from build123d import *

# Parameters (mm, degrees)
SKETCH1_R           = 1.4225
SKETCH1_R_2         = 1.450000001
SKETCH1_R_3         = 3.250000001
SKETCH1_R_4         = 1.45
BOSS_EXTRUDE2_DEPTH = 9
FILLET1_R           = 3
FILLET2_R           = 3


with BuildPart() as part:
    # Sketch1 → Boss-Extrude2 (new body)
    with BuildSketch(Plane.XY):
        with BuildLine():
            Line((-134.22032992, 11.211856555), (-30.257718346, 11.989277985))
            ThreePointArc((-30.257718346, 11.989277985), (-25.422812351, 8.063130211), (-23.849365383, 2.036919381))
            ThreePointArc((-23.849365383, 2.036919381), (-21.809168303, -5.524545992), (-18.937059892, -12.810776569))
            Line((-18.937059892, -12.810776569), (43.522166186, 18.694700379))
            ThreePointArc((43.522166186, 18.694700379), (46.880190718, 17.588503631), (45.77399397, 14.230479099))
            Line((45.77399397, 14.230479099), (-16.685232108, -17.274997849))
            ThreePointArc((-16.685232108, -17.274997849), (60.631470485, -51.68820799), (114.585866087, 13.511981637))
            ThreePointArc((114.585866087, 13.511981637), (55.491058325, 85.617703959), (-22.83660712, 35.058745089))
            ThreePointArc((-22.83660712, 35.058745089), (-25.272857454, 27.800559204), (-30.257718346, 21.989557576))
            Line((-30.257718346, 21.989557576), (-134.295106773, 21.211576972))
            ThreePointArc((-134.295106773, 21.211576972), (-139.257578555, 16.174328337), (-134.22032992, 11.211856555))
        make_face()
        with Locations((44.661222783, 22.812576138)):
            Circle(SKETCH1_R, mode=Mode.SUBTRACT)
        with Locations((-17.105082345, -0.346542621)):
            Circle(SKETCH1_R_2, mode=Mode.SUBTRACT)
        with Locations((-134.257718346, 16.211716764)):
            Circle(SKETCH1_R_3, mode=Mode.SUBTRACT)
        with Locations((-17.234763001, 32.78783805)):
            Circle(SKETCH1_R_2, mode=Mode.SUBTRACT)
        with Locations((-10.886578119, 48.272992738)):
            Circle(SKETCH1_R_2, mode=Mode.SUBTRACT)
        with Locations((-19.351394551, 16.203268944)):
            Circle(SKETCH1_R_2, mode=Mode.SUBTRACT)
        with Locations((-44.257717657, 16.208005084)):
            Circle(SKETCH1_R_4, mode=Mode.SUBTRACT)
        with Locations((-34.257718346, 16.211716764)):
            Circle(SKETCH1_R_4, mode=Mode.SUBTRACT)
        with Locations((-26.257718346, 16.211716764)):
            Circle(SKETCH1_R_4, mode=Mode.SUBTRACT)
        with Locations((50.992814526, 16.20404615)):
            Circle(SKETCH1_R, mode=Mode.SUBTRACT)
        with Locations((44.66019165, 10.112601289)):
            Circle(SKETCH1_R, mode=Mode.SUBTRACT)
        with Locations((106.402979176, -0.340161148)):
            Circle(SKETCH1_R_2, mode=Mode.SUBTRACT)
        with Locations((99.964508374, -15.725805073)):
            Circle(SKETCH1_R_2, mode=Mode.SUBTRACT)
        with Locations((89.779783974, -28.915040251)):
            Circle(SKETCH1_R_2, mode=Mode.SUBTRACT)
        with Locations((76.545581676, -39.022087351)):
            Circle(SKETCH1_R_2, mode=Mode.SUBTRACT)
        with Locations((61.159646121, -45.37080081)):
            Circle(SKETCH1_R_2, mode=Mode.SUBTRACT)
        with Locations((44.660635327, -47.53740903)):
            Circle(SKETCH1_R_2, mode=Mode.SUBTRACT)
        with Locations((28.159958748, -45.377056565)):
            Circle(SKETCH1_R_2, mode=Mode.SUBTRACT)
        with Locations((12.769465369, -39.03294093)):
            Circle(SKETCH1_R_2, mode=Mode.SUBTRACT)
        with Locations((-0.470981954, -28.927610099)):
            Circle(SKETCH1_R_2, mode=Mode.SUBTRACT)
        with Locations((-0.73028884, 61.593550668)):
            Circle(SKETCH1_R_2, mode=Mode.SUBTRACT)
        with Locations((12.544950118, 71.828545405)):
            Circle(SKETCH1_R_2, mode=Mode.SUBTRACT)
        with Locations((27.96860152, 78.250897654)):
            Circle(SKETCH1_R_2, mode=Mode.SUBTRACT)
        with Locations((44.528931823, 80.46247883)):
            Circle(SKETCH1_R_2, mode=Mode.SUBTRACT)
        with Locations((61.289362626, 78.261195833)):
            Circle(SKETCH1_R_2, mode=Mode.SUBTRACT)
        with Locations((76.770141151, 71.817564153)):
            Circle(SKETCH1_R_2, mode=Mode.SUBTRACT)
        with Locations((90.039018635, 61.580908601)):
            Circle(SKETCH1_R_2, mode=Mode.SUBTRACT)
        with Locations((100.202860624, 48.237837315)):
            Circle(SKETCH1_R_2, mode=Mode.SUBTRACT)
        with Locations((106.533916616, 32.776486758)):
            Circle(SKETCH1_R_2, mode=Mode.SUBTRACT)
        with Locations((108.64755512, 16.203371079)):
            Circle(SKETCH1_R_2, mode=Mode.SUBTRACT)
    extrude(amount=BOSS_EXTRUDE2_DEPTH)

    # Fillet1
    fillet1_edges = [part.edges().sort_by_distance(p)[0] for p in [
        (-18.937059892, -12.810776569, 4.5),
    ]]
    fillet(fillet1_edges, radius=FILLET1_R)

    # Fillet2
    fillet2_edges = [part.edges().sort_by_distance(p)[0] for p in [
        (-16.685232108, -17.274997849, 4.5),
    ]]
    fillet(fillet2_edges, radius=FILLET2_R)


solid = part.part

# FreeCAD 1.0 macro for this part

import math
import FreeCAD as App
import Part
import Sketcher
from FreeCAD import Vector


def edges_at(feature, points):
    """Names of the edges that pass closest to the given points."""
    edges = feature.Shape.Edges
    near = lambda p: min(range(len(edges)), key=lambda i: edges[i].distToShape(Part.Vertex(*p))[0])
    return sorted({f"Edge{near(p) + 1}" for p in points})

doc = App.newDocument("Part")
body = doc.addObject("PartDesign::Body", "Body")

sketch1 = doc.addObject("Sketcher::SketchObject", "Sketch")
body.addObject(sketch1)
sketch1.AttachmentSupport = (doc.XY_Plane, [""])
sketch1.MapMode = "FlatFace"
sketch1.addGeometry(Part.LineSegment(Vector(-134.22033, 11.211857, 0), Vector(-30.257718, 11.989278, 0)), False)
sketch1.addGeometry(Part.ArcOfCircle(Part.Circle(Vector(-33.830595, 2.649334, 0), Vector(0, 0, 1), 10), math.radians(-3.511075), math.radians(69.066284)), False)
sketch1.addGeometry(Part.ArcOfCircle(Part.Circle(Vector(44.64808, 16.46259, 0), Vector(0, 0, 1), 70), math.radians(-168.107213), math.radians(-155.279573)), False)
sketch1.addGeometry(Part.LineSegment(Vector(-18.93706, -12.810777, 0), Vector(43.522166, 18.6947, 0)), False)
sketch1.addGeometry(Part.ArcOfCircle(Part.Circle(Vector(44.64808, 16.46259, 0), Vector(0, 0, 1), 2.5), math.radians(-63.23286), math.radians(116.76714)), False)
sketch1.addGeometry(Part.LineSegment(Vector(45.773994, 14.230479, 0), Vector(-16.685232, -17.274998, 0)), False)
sketch1.addGeometry(Part.ArcOfCircle(Part.Circle(Vector(44.64808, 16.46259, 0), Vector(0, 0, 1), 70), math.radians(-151.186147), math.radians(-2.415821)), False)
sketch1.addGeometry(Part.ArcOfCircle(Part.Circle(Vector(44.64808, 16.46259, 0), Vector(0, 0, 1), 70), math.radians(-2.415821), math.radians(164.593864)), False)
sketch1.addGeometry(Part.ArcOfCircle(Part.Circle(Vector(-42.664596, 37.676156, 0), Vector(0, 0, 1), 20), math.radians(-51.658748), math.radians(-7.519901)), False)
sketch1.addGeometry(Part.LineSegment(Vector(-30.257718, 21.989558, 0), Vector(-134.295107, 21.211577, 0)), False)
sketch1.addGeometry(Part.ArcOfCircle(Part.Circle(Vector(-134.257718, 16.211717, 0), Vector(0, 0, 1), 5), math.radians(90.428444), math.radians(270.428444)), False)
sketch1.addGeometry(Part.Circle(Vector(-134.257718, 16.211717, 0), Vector(0, 0, 1), 3.25), False)
sketch1.addGeometry(Part.Circle(Vector(-17.105082, -0.346543, 0), Vector(0, 0, 1), 1.45), False)
sketch1.addGeometry(Part.Circle(Vector(-44.257718, 16.208005, 0), Vector(0, 0, 1), 1.45), False)
sketch1.addGeometry(Part.Circle(Vector(-34.257718, 16.211717, 0), Vector(0, 0, 1), 1.45), False)
sketch1.addGeometry(Part.Circle(Vector(-26.257718, 16.211717, 0), Vector(0, 0, 1), 1.45), False)
sketch1.addGeometry(Part.Circle(Vector(-19.351395, 16.203269, 0), Vector(0, 0, 1), 1.45), False)
sketch1.addGeometry(Part.Circle(Vector(12.769465, -39.032941, 0), Vector(0, 0, 1), 1.45), False)
sketch1.addGeometry(Part.Circle(Vector(28.159959, -45.377057, 0), Vector(0, 0, 1), 1.45), False)
sketch1.addGeometry(Part.Circle(Vector(44.660635, -47.537409, 0), Vector(0, 0, 1), 1.45), False)
sketch1.addGeometry(Part.Circle(Vector(-0.470982, -28.92761, 0), Vector(0, 0, 1), 1.45), False)
sketch1.addGeometry(Part.Circle(Vector(61.159646, -45.370801, 0), Vector(0, 0, 1), 1.45), False)
sketch1.addGeometry(Part.Circle(Vector(76.545582, -39.022087, 0), Vector(0, 0, 1), 1.45), False)
sketch1.addGeometry(Part.Circle(Vector(89.779784, -28.91504, 0), Vector(0, 0, 1), 1.45), False)
sketch1.addGeometry(Part.Circle(Vector(44.660192, 10.112601, 0), Vector(0, 0, 1), 1.4225), False)
sketch1.addGeometry(Part.Circle(Vector(99.964508, -15.725805, 0), Vector(0, 0, 1), 1.45), False)
sketch1.addGeometry(Part.Circle(Vector(106.402979, -0.340161, 0), Vector(0, 0, 1), 1.45), False)
sketch1.addGeometry(Part.Circle(Vector(50.992815, 16.204046, 0), Vector(0, 0, 1), 1.4225), False)
sketch1.addGeometry(Part.Circle(Vector(108.647555, 16.203371, 0), Vector(0, 0, 1), 1.45), False)
sketch1.addGeometry(Part.Circle(Vector(-17.234763, 32.787838, 0), Vector(0, 0, 1), 1.45), False)
sketch1.addGeometry(Part.Circle(Vector(44.661223, 22.812576, 0), Vector(0, 0, 1), 1.4225), False)
sketch1.addGeometry(Part.Circle(Vector(-10.886578, 48.272993, 0), Vector(0, 0, 1), 1.45), False)
sketch1.addGeometry(Part.Circle(Vector(106.533917, 32.776487, 0), Vector(0, 0, 1), 1.45), False)
sketch1.addGeometry(Part.Circle(Vector(100.202861, 48.237837, 0), Vector(0, 0, 1), 1.45), False)
sketch1.addGeometry(Part.Circle(Vector(-0.730289, 61.593551, 0), Vector(0, 0, 1), 1.45), False)
sketch1.addGeometry(Part.Circle(Vector(12.54495, 71.828545, 0), Vector(0, 0, 1), 1.45), False)
sketch1.addGeometry(Part.Circle(Vector(27.968602, 78.250898, 0), Vector(0, 0, 1), 1.45), False)
sketch1.addGeometry(Part.Circle(Vector(44.528932, 80.462479, 0), Vector(0, 0, 1), 1.45), False)
sketch1.addGeometry(Part.Circle(Vector(90.039019, 61.580909, 0), Vector(0, 0, 1), 1.45), False)
sketch1.addGeometry(Part.Circle(Vector(76.770141, 71.817564, 0), Vector(0, 0, 1), 1.45), False)
sketch1.addGeometry(Part.Circle(Vector(61.289363, 78.261196, 0), Vector(0, 0, 1), 1.45), False)
sketch1.addConstraint(Sketcher.Constraint("Coincident", 0, 2, 1, 2))
sketch1.addConstraint(Sketcher.Constraint("Coincident", 1, 1, 2, 1))
sketch1.addConstraint(Sketcher.Constraint("Coincident", 2, 2, 3, 1))
sketch1.addConstraint(Sketcher.Constraint("Coincident", 3, 2, 4, 2))
sketch1.addConstraint(Sketcher.Constraint("Coincident", 4, 1, 5, 1))
sketch1.addConstraint(Sketcher.Constraint("Coincident", 5, 2, 6, 1))
sketch1.addConstraint(Sketcher.Constraint("Coincident", 6, 2, 7, 1))
sketch1.addConstraint(Sketcher.Constraint("Coincident", 7, 2, 8, 2))
sketch1.addConstraint(Sketcher.Constraint("Coincident", 8, 1, 9, 1))
sketch1.addConstraint(Sketcher.Constraint("Coincident", 9, 2, 10, 1))
sketch1.addConstraint(Sketcher.Constraint("Coincident", 10, 2, 0, 1))
sketch1.addConstraint(Sketcher.Constraint("Coincident", 4, 3, 2, 3))
sketch1.addConstraint(Sketcher.Constraint("Coincident", 6, 3, 2, 3))
sketch1.addConstraint(Sketcher.Constraint("Coincident", 7, 3, 2, 3))
sketch1.addConstraint(Sketcher.Constraint("Coincident", 11, 3, 10, 3))
sketch1.addConstraint(Sketcher.Constraint("Radius", 1, 10.0))
sketch1.addConstraint(Sketcher.Constraint("Radius", 2, 70.0))
sketch1.addConstraint(Sketcher.Constraint("Radius", 6, 70.0))
sketch1.addConstraint(Sketcher.Constraint("Radius", 8, 20.0))
sketch1.addConstraint(Sketcher.Constraint("Radius", 10, 5.0))
sketch1.addConstraint(Sketcher.Constraint("Diameter", 11, 6.5))
sketch1.addConstraint(Sketcher.Constraint("Diameter", 12, 2.9))
sketch1.addConstraint(Sketcher.Constraint("Diameter", 13, 2.9))
sketch1.addConstraint(Sketcher.Constraint("Diameter", 14, 2.9))
sketch1.addConstraint(Sketcher.Constraint("Diameter", 15, 2.9))
sketch1.addConstraint(Sketcher.Constraint("Diameter", 16, 2.9))
sketch1.addConstraint(Sketcher.Constraint("Diameter", 17, 2.9))
sketch1.addConstraint(Sketcher.Constraint("Diameter", 18, 2.9))
sketch1.addConstraint(Sketcher.Constraint("Diameter", 19, 2.9))
sketch1.addConstraint(Sketcher.Constraint("Diameter", 20, 2.9))
sketch1.addConstraint(Sketcher.Constraint("Diameter", 21, 2.9))
sketch1.addConstraint(Sketcher.Constraint("Diameter", 22, 2.9))
sketch1.addConstraint(Sketcher.Constraint("Diameter", 23, 2.9))
sketch1.addConstraint(Sketcher.Constraint("Diameter", 25, 2.9))
sketch1.addConstraint(Sketcher.Constraint("Diameter", 26, 2.9))
sketch1.addConstraint(Sketcher.Constraint("Diameter", 28, 2.9))
sketch1.addConstraint(Sketcher.Constraint("Diameter", 29, 2.9))
sketch1.addConstraint(Sketcher.Constraint("Diameter", 31, 2.9))
sketch1.addConstraint(Sketcher.Constraint("Diameter", 32, 2.9))
sketch1.addConstraint(Sketcher.Constraint("Diameter", 33, 2.9))
sketch1.addConstraint(Sketcher.Constraint("Diameter", 34, 2.9))
sketch1.addConstraint(Sketcher.Constraint("Diameter", 35, 2.9))
sketch1.addConstraint(Sketcher.Constraint("Diameter", 36, 2.9))
sketch1.addConstraint(Sketcher.Constraint("Diameter", 37, 2.9))
sketch1.addConstraint(Sketcher.Constraint("Diameter", 38, 2.9))
sketch1.addConstraint(Sketcher.Constraint("Diameter", 39, 2.9))
sketch1.addConstraint(Sketcher.Constraint("Diameter", 40, 2.9))
sketch1.addConstraint(Sketcher.Constraint("Radius", 4, 2.5))
sketch1.addConstraint(Sketcher.Constraint("Diameter", 24, 2.845))
sketch1.addConstraint(Sketcher.Constraint("Diameter", 27, 2.845))
sketch1.addConstraint(Sketcher.Constraint("Diameter", 30, 2.845))
sketch1.addConstraint(Sketcher.Constraint("DistanceX", 13, 3, 14, 3, 9.999999))
sketch1.addConstraint(Sketcher.Constraint("DistanceX", 14, 3, 15, 3, 8.0))
sketch1.addConstraint(Sketcher.Constraint("DistanceY", 19, 3, 2, 3, 63.999999))
sketch1.addConstraint(Sketcher.Constraint("DistanceX", 14, 3, 0, 2, 4.0))
sketch1.addConstraint(Sketcher.Constraint("DistanceX", 8, 1, 15, 3, 4.0))
sketch1.addConstraint(Sketcher.Constraint("DistanceX", 8, 3, 1, 3, 8.834001))
sketch1.addConstraint(Sketcher.Constraint("DistanceY", 26, 3, 33, 3, 48.577998))
sketch1.addConstraint(Sketcher.Constraint("DistanceY", 21, 3, -1, 1, 45.370801))
sketch1.addConstraint(Sketcher.Constraint("DistanceY", -1, 1, 24, 3, 10.112601))
sketch1.addConstraint(Sketcher.Constraint("DistanceX", -1, 1, 36, 3, 27.968602))
sketch1.addConstraint(Sketcher.Constraint("DistanceY", -1, 1, 3, 2, 18.6947))
sketch1.addConstraint(Sketcher.Constraint("DistanceX", 10, 3, 2, 3, 178.905798))
sketch1.addConstraint(Sketcher.Constraint("DistanceY", 12, 3, 8, 3, 38.022699))
sketch1.addConstraint(Sketcher.Constraint("DistanceX", 14, 3, 2, 3, 78.905798))
sketch1.addConstraint(Sketcher.Constraint("DistanceX", 1, 3, 16, 3, 14.479201))
sketch1.addConstraint(Sketcher.Constraint("DistanceY", 17, 3, 12, 3, 38.686398))
sketch1.addConstraint(Sketcher.Constraint("DistanceX", 12, 3, 20, 3, 16.6341))
sketch1.addConstraint(Sketcher.Constraint("DistanceY", 19, 3, 20, 3, 18.609799))
sketch1.addConstraint(Sketcher.Constraint("DistanceX", 4, 3, 22, 3, 31.897502))
sketch1.addConstraint(Sketcher.Constraint("DistanceY", 36, 3, 40, 3, 0.010298))
sketch1.addConstraint(Sketcher.Constraint("DistanceY", 10, 2, 8, 3, 26.4643))
sketch1.addConstraint(Sketcher.Constraint("Distance", 0, 103.965518))
sketch1.addConstraint(Sketcher.Constraint("DistanceX", -1, 1, 2, 3, 44.64808))
sketch1.addConstraint(Sketcher.Constraint("DistanceY", -1, 1, 2, 3, 16.46259))
sketch1.addConstraint(Sketcher.Constraint("DistanceY", -1, 1, 16, 3, 16.203269))
sketch1.addConstraint(Sketcher.Constraint("DistanceY", 17, 3, -1, 1, 39.032941))
sketch1.addConstraint(Sketcher.Constraint("DistanceX", -1, 1, 18, 3, 28.159959))
sketch1.addConstraint(Sketcher.Constraint("DistanceX", 20, 3, -1, 1, 0.470982))
sketch1.addConstraint(Sketcher.Constraint("DistanceY", 23, 3, -1, 1, 28.91504))
sketch1.addConstraint(Sketcher.Constraint("DistanceX", -1, 1, 24, 3, 44.660192))
sketch1.addConstraint(Sketcher.Constraint("DistanceX", -1, 1, 25, 3, 99.964508))
sketch1.addConstraint(Sketcher.Constraint("DistanceX", -1, 1, 26, 3, 106.402979))
sketch1.addConstraint(Sketcher.Constraint("DistanceY", 26, 3, -1, 1, 0.340161))
sketch1.addConstraint(Sketcher.Constraint("DistanceY", -1, 1, 28, 3, 16.203371))
sketch1.addConstraint(Sketcher.Constraint("DistanceY", -1, 1, 29, 3, 32.787838))
sketch1.addConstraint(Sketcher.Constraint("DistanceX", 31, 3, -1, 1, 10.886578))
sketch1.addConstraint(Sketcher.Constraint("DistanceX", -1, 1, 33, 3, 100.202861))
sketch1.addConstraint(Sketcher.Constraint("DistanceX", 34, 3, -1, 1, 0.730289))
sketch1.addConstraint(Sketcher.Constraint("DistanceY", -1, 1, 34, 3, 61.593551))
sketch1.addConstraint(Sketcher.Constraint("DistanceX", -1, 1, 35, 3, 12.54495))
sketch1.addConstraint(Sketcher.Constraint("DistanceX", -1, 1, 37, 3, 44.528932))
sketch1.addConstraint(Sketcher.Constraint("DistanceY", -1, 1, 37, 3, 80.462479))
sketch1.addConstraint(Sketcher.Constraint("DistanceX", -1, 1, 38, 3, 90.039019))
sketch1.addConstraint(Sketcher.Constraint("DistanceY", -1, 1, 38, 3, 61.580909))
sketch1.addConstraint(Sketcher.Constraint("DistanceX", -1, 1, 39, 3, 76.770141))
sketch1.addConstraint(Sketcher.Constraint("DistanceY", -1, 1, 1, 1, 2.036919))
sketch1.addConstraint(Sketcher.Constraint("DistanceX", 2, 2, -1, 1, 18.93706))
sketch1.addConstraint(Sketcher.Constraint("DistanceY", -1, 1, 4, 1, 14.230479))
sketch1.addConstraint(Sketcher.Constraint("DistanceY", -1, 1, 6, 2, 13.511982))
sketch1.addConstraint(Sketcher.Constraint("DistanceX", 10, 3, 8, 3, 91.593122))
sketch1.addConstraint(Sketcher.Constraint("DistanceY", 1, 3, 13, 3, 13.558671))
sketch1.addConstraint(Sketcher.Constraint("DistanceY", 13, 3, 14, 3, 0.003712))
sketch1.addConstraint(Sketcher.Constraint("DistanceY", 13, 3, 15, 3, 0.003712))
sketch1.addConstraint(Sketcher.Constraint("DistanceX", 1, 3, 17, 3, 46.600061))
sketch1.addConstraint(Sketcher.Constraint("DistanceX", 17, 3, 19, 3, 31.89117))
sketch1.addConstraint(Sketcher.Constraint("DistanceX", 19, 3, 21, 3, 16.499011))
sketch1.addConstraint(Sketcher.Constraint("DistanceY", 19, 3, 22, 3, 8.515322))
sketch1.addConstraint(Sketcher.Constraint("DistanceY", 18, 3, 22, 3, 6.354969))
sketch1.addConstraint(Sketcher.Constraint("DistanceX", 19, 3, 23, 3, 45.119149))
sketch1.addConstraint(Sketcher.Constraint("DistanceX", 23, 3, 28, 3, 18.867771))
sketch1.addConstraint(Sketcher.Constraint("DistanceX", 27, 3, 28, 3, 57.654741))
sketch1.addConstraint(Sketcher.Constraint("DistanceX", 16, 3, 29, 3, 2.116632))
sketch1.addConstraint(Sketcher.Constraint("DistanceX", 30, 3, 27, 3, 6.331592))
sketch1.addConstraint(Sketcher.Constraint("DistanceY", 27, 3, 30, 3, 6.60853))
sketch1.addConstraint(Sketcher.Constraint("DistanceX", 32, 3, 28, 3, 2.113639))
sketch1.addConstraint(Sketcher.Constraint("DistanceY", 25, 3, 32, 3, 48.502292))
sketch1.addConstraint(Sketcher.Constraint("DistanceY", 27, 3, 32, 3, 16.572441))
sketch1.addConstraint(Sketcher.Constraint("DistanceY", 32, 3, 33, 3, 15.461351))
sketch1.addConstraint(Sketcher.Constraint("DistanceY", 30, 3, 35, 3, 49.015969))
sketch1.addConstraint(Sketcher.Constraint("DistanceY", 30, 3, 36, 3, 55.438322))
sketch1.addConstraint(Sketcher.Constraint("DistanceX", 40, 3, 39, 3, 15.480779))
sketch1.addConstraint(Sketcher.Constraint("DistanceY", 39, 3, 40, 3, 6.443632))
sketch1.addConstraint(Sketcher.Constraint("DistanceY", 5, 2, 2, 2, 4.464221))
sketch1.addConstraint(Sketcher.Constraint("DistanceX", 9, 2, 10, 3, 0.037388))
sketch1.addConstraint(Sketcher.Constraint("DistanceY", -1, 1, 31, 3, 48.272993))
pad1 = doc.addObject("PartDesign::Pad", "Pad")
body.addObject(pad1)
pad1.Profile = sketch1
pad1.Length = 9
doc.recompute()

fillet = doc.addObject("PartDesign::Fillet", "Fillet")
body.addObject(fillet)
fillet.Base = (pad1, edges_at(pad1, [(-18.937, -12.811, 4.5)]))
fillet.Radius = 3
doc.recompute()

fillet2 = doc.addObject("PartDesign::Fillet", "Fillet001")
body.addObject(fillet2)
fillet2.Base = (fillet, edges_at(fillet, [(-16.685, -17.275, 4.5)]))
fillet2.Radius = 3

doc.recompute()
